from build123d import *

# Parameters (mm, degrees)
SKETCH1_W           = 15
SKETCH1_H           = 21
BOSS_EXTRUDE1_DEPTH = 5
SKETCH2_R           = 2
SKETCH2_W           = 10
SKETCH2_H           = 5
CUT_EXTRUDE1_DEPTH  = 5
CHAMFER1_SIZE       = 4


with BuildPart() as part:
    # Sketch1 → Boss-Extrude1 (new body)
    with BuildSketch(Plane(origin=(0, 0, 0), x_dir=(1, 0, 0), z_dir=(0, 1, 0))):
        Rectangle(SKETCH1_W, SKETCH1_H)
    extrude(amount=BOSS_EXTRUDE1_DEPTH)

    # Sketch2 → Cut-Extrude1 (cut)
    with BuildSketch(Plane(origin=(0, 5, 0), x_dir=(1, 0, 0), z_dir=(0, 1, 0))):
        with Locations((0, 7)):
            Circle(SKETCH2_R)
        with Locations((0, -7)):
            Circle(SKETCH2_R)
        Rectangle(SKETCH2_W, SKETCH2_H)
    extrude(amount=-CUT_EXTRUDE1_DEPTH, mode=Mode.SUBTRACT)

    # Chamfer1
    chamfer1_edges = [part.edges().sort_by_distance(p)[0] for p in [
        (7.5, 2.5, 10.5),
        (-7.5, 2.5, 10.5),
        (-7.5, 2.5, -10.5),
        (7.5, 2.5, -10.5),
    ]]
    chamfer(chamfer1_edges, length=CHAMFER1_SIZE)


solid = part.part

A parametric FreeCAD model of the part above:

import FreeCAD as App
import Part
import Sketcher
from FreeCAD import Vector
Q = App.Units.Quantity


def edges_at(feature, points):
    """Names of the edges that pass closest to the given points."""
    edges = feature.Shape.Edges
    near = lambda p: min(range(len(edges)), key=lambda i: edges[i].distToShape(Part.Vertex(*p))[0])
    return sorted({f"Edge{near(p) + 1}" for p in points})

doc = App.newDocument("Part")
body = doc.addObject("PartDesign::Body", "Body")

# Sketch on XZ plane
sketch1 = body.newObject("Sketcher::SketchObject", "Sketch")
sketch1.AttachmentSupport = (doc.getObject("XZ_Plane"), [""])
sketch1.MapMode = "FlatFace"
sketch1.addGeometry([
    Part.LineSegment(Vector(-8, -10, 0), Vector(-8, 10, 0)),
    Part.LineSegment(Vector(-8, 10, 0), Vector(8, 10, 0)),
    Part.LineSegment(Vector(8, 10, 0), Vector(8, -10, 0)),
    Part.LineSegment(Vector(8, -10, 0), Vector(-8, -10, 0)),
], False)
sketch1.addConstraint([
    Sketcher.Constraint("Coincident", 0, 2, 1, 1),
    Sketcher.Constraint("Coincident", 1, 2, 2, 1),
    Sketcher.Constraint("Coincident", 2, 2, 3, 1),
    Sketcher.Constraint("Coincident", 3, 2, 0, 1),
    Sketcher.Constraint("Vertical", 0),
    Sketcher.Constraint("Horizontal", 1),
    Sketcher.Constraint("Vertical", 2),
    Sketcher.Constraint("Horizontal", 3),
    Sketcher.Constraint("Symmetric", 0, 2, 2, 2, -1, 1),
    Sketcher.Constraint("DistanceX", 1, 1, 1, 2, Q("15 mm")),
    Sketcher.Constraint("DistanceY", 0, 1, 0, 2, Q("21 mm")),
])
pad1 = body.newObject("PartDesign::Pad", "Pad")
pad1.Profile = sketch1
pad1.Length = 5
pad1.Reversed = True

# Sketch on XZ plane
sketch2 = body.newObject("Sketcher::SketchObject", "Sketch001")
sketch2.AttachmentSupport = (doc.getObject("XZ_Plane"), [""])
sketch2.MapMode = "FlatFace"
sketch2.AttachmentOffset = App.Placement(Vector(0, 0, -5), App.Rotation())
sketch2.addGeometry([
    Part.Circle(Vector(0, -7, 0), Vector(0, 0, 1), 2),  # 0
    Part.Circle(Vector(0, 7, 0), Vector(0, 0, 1), 2),  # 1
    Part.LineSegment(Vector(-5, -2.5, 0), Vector(-5, 2.5, 0)),  # 2
    Part.LineSegment(Vector(-5, 2.5, 0), Vector(5, 2.5, 0)),  # 3
    Part.LineSegment(Vector(5, 2.5, 0), Vector(5, -2.5, 0)),  # 4
    Part.LineSegment(Vector(5, -2.5, 0), Vector(-5, -2.5, 0)),  # 5
], False)
sketch2.addConstraint([
    Sketcher.Constraint("Coincident", 2, 2, 3, 1),
    Sketcher.Constraint("Coincident", 3, 2, 4, 1),
    Sketcher.Constraint("Coincident", 4, 2, 5, 1),
    Sketcher.Constraint("Coincident", 5, 2, 2, 1),
    Sketcher.Constraint("Vertical", 2),
    Sketcher.Constraint("Horizontal", 3),
    Sketcher.Constraint("Vertical", 4),
    Sketcher.Constraint("Horizontal", 5),
    Sketcher.Constraint("Equal", 0, 1),
    Sketcher.Constraint("Symmetric", 0, 3, 1, 3, -1, 1),
    Sketcher.Constraint("Symmetric", 2, 2, 4, 2, -1, 1),
    Sketcher.Constraint("PointOnObject", 0, 3, -2),
    Sketcher.Constraint("Diameter", 0, Q("4 mm")),
    Sketcher.Constraint("DistanceX", 3, 1, 3, 2, Q("10 mm")),
    Sketcher.Constraint("DistanceY", 2, 1, 2, 2, Q("5 mm")),
    Sketcher.Constraint("DistanceY", 0, 3, -1, 1, Q("7 mm")),
])
pocket1 = body.newObject("PartDesign::Pocket", "Pocket")
pocket1.Profile = sketch2
pocket1.Length = 5
pocket1.Reversed = True
doc.recompute()

chamfer = body.newObject("PartDesign::Chamfer", "Chamfer")
chamfer.Base = (pocket1, edges_at(pocket1, [
    (7.5, 2.5, 10.5),
    (-7.5, 2.5, 10.5),
    (-7.5, 2.5, -10.5),
    (7.5, 2.5, -10.5),
]))
chamfer.Size = 4

doc.recompute()
